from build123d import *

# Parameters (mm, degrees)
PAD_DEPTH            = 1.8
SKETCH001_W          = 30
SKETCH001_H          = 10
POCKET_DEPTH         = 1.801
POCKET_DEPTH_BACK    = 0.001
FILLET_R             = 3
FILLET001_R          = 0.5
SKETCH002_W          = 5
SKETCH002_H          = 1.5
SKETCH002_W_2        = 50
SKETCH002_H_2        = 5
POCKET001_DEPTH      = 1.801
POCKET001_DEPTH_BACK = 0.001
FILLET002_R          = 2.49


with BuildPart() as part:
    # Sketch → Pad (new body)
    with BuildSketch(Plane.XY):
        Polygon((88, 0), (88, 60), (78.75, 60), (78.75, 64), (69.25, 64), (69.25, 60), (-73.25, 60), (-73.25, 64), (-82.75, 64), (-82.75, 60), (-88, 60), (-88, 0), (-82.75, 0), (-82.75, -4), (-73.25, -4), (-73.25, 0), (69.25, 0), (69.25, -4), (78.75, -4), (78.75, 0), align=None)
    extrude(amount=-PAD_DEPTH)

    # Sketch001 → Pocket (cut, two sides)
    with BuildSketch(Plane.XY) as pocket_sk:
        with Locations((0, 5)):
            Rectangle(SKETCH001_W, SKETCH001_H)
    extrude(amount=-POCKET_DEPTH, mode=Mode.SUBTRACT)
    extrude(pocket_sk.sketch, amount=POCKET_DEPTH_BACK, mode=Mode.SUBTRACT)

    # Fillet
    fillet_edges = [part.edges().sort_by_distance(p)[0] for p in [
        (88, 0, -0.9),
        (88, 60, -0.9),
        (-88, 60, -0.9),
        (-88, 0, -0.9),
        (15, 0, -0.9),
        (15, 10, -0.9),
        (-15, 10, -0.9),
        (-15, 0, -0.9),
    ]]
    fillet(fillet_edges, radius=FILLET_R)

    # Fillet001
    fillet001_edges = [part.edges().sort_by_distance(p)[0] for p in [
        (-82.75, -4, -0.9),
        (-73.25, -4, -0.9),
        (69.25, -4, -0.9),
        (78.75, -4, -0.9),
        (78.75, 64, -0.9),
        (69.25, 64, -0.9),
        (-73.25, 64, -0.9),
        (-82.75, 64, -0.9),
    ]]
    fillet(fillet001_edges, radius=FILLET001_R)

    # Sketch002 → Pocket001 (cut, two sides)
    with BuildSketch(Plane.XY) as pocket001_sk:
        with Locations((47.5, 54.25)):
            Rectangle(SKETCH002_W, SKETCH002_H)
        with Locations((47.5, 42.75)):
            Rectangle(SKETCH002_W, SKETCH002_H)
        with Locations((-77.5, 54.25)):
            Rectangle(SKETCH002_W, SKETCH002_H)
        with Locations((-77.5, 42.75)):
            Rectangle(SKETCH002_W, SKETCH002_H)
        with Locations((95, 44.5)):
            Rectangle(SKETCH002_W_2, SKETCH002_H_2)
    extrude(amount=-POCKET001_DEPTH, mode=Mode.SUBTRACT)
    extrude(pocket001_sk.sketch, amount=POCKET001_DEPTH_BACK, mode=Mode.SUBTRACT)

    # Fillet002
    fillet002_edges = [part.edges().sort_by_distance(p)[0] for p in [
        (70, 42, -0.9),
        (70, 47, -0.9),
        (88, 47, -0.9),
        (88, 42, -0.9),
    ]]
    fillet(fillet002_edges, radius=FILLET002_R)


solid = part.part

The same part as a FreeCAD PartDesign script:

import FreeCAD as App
import Part
import Sketcher

V = App.Vector
Q = App.Units.Quantity


def edges_at(feature, points):
    """Names of the edges that pass closest to the given points."""
    edges = feature.Shape.Edges
    near = lambda p: min(range(len(edges)), key=lambda i: edges[i].distToShape(Part.Vertex(*p))[0])
    return sorted({f"Edge{near(p) + 1}" for p in points})

doc = App.newDocument("Part")
params = doc.addObject("Spreadsheet::Sheet", "Params")
for row, (alias, value) in enumerate([
    ("sketch1_height", "60 mm"),
    ("sketch1_height2", "4 mm"),
    ("sketch1_width", "9.5 mm"),
    ("sketch1_width2", "142.5 mm"),
    ("sketch1_width3", "9.25 mm"),
    ("pad1_length", "1.8 mm"),
    ("sketch2_width", "30 mm"),
    ("sketch2_height", "10 mm"),
    ("fillet_radius", "3 mm"),
    ("fillet2_radius", "0.5 mm"),
    ("sketch3_width", "5 mm"),
    ("sketch3_width2", "50 mm"),
    ("sketch3_height", "1.5 mm"),
    ("fillet3_radius", "2.49 mm"),
], start=1):
    params.set(f"A{row}", alias)
    params.set(f"B{row}", "=" + value)
    params.setAlias(f"B{row}", alias)

body = doc.addObject("PartDesign::Body", "Body")

sketch1 = body.newObject("Sketcher::SketchObject", "Sketch")
sketch1.AttachmentSupport = (doc.getObject("XY_Plane"), [""])
sketch1.MapMode = "FlatFace"
sketch1.addGeometry(Part.LineSegment(V(88, 0, 0), V(88, 60, 0)), False)
sketch1.addGeometry(Part.LineSegment(V(88, 60, 0), V(78.8, 60, 0)), False)
sketch1.addGeometry(Part.LineSegment(V(78.8, 60, 0), V(78.8, 64, 0)), False)
sketch1.addGeometry(Part.LineSegment(V(78.8, 64, 0), V(69.2, 64, 0)), False)
sketch1.addGeometry(Part.LineSegment(V(69.2, 64, 0), V(69.2, 60, 0)), False)
sketch1.addGeometry(Part.LineSegment(V(69.2, 60, 0), V(-73.2, 60, 0)), False)
sketch1.addGeometry(Part.LineSegment(V(-73.2, 60, 0), V(-73.2, 64, 0)), False)
sketch1.addGeometry(Part.LineSegment(V(-73.2, 64, 0), V(-82.8, 64, 0)), False)
sketch1.addGeometry(Part.LineSegment(V(-82.8, 64, 0), V(-82.8, 60, 0)), False)
sketch1.addGeometry(Part.LineSegment(V(-82.8, 60, 0), V(-88, 60, 0)), False)
sketch1.addGeometry(Part.LineSegment(V(-88, 60, 0), V(-88, 0, 0)), False)
sketch1.addGeometry(Part.LineSegment(V(-88, 0, 0), V(-82.8, 0, 0)), False)
sketch1.addGeometry(Part.LineSegment(V(-82.8, 0, 0), V(-82.8, -4, 0)), False)
sketch1.addGeometry(Part.LineSegment(V(-82.8, -4, 0), V(-73.2, -4, 0)), False)
sketch1.addGeometry(Part.LineSegment(V(-73.2, -4, 0), V(-73.2, 0, 0)), False)
sketch1.addGeometry(Part.LineSegment(V(-73.2, 0, 0), V(69.2, 0, 0)), False)
sketch1.addGeometry(Part.LineSegment(V(69.2, 0, 0), V(69.2, -4, 0)), False)
sketch1.addGeometry(Part.LineSegment(V(69.2, -4, 0), V(78.8, -4, 0)), False)
sketch1.addGeometry(Part.LineSegment(V(78.8, -4, 0), V(78.8, 0, 0)), False)
sketch1.addGeometry(Part.LineSegment(V(78.8, 0, 0), V(88, 0, 0)), False)
sketch1.addConstraint(Sketcher.Constraint("Coincident", 0, 2, 1, 1))
sketch1.addConstraint(Sketcher.Constraint("Coincident", 1, 2, 2, 1))
sketch1.addConstraint(Sketcher.Constraint("Coincident", 2, 2, 3, 1))
sketch1.addConstraint(Sketcher.Constraint("Coincident", 3, 2, 4, 1))
sketch1.addConstraint(Sketcher.Constraint("Coincident", 4, 2, 5, 1))
sketch1.addConstraint(Sketcher.Constraint("Coincident", 5, 2, 6, 1))
sketch1.addConstraint(Sketcher.Constraint("Coincident", 6, 2, 7, 1))
sketch1.addConstraint(Sketcher.Constraint("Coincident", 7, 2, 8, 1))
sketch1.addConstraint(Sketcher.Constraint("Coincident", 8, 2, 9, 1))
sketch1.addConstraint(Sketcher.Constraint("Coincident", 9, 2, 10, 1))
sketch1.addConstraint(Sketcher.Constraint("Coincident", 10, 2, 11, 1))
sketch1.addConstraint(Sketcher.Constraint("Coincident", 11, 2, 12, 1))
sketch1.addConstraint(Sketcher.Constraint("Coincident", 12, 2, 13, 1))
sketch1.addConstraint(Sketcher.Constraint("Coincident", 13, 2, 14, 1))
sketch1.addConstraint(Sketcher.Constraint("Coincident", 14, 2, 15, 1))
sketch1.addConstraint(Sketcher.Constraint("Coincident", 15, 2, 16, 1))
sketch1.addConstraint(Sketcher.Constraint("Coincident", 16, 2, 17, 1))
sketch1.addConstraint(Sketcher.Constraint("Coincident", 17, 2, 18, 1))
sketch1.addConstraint(Sketcher.Constraint("Coincident", 18, 2, 19, 1))
sketch1.addConstraint(Sketcher.Constraint("Coincident", 19, 2, 0, 1))
sketch1.addConstraint(Sketcher.Constraint("Vertical", 0))
sketch1.addConstraint(Sketcher.Constraint("Horizontal", 1))
sketch1.addConstraint(Sketcher.Constraint("Vertical", 2))
sketch1.addConstraint(Sketcher.Constraint("Horizontal", 3))
sketch1.addConstraint(Sketcher.Constraint("Vertical", 4))
sketch1.addConstraint(Sketcher.Constraint("Horizontal", 5))
sketch1.addConstraint(Sketcher.Constraint("Vertical", 6))
sketch1.addConstraint(Sketcher.Constraint("Horizontal", 7))
sketch1.addConstraint(Sketcher.Constraint("Vertical", 8))
sketch1.addConstraint(Sketcher.Constraint("Horizontal", 9))
sketch1.addConstraint(Sketcher.Constraint("Vertical", 10))
sketch1.addConstraint(Sketcher.Constraint("Horizontal", 11))
sketch1.addConstraint(Sketcher.Constraint("Vertical", 12))
sketch1.addConstraint(Sketcher.Constraint("Horizontal", 13))
sketch1.addConstraint(Sketcher.Constraint("Vertical", 14))
sketch1.addConstraint(Sketcher.Constraint("Horizontal", 15))
sketch1.addConstraint(Sketcher.Constraint("Vertical", 16))
sketch1.addConstraint(Sketcher.Constraint("Horizontal", 17))
sketch1.addConstraint(Sketcher.Constraint("Vertical", 18))
sketch1.addConstraint(Sketcher.Constraint("Horizontal", 19))
sketch1.addConstraint(Sketcher.Constraint("Symmetric", 10, 2, 19, 2, -1, 1))
sketch1.addConstraint(Sketcher.Constraint("PointOnObject", 10, 2, -1))
sketch1.addConstraint(Sketcher.Constraint("PointOnObject", 14, 2, -1))
sketch1.addConstraint(Sketcher.Constraint("Horizontal", 1, 2, 4, 2))
sketch1.addConstraint(Sketcher.Constraint("Horizontal", 3, 2, 6, 2))
sketch1.addConstraint(Sketcher.Constraint("Horizontal", 5, 2, 8, 2))
sketch1.addConstraint(Sketcher.Constraint("Horizontal", 13, 2, 16, 2))
sketch1.addConstraint(Sketcher.Constraint("Vertical", 8, 2, 11, 2))
sketch1.addConstraint(Sketcher.Constraint("Vertical", 6, 2, 13, 2))
sketch1.addConstraint(Sketcher.Constraint("Vertical", 4, 2, 15, 2))
sketch1.addConstraint(Sketcher.Constraint("Vertical", 2, 2, 17, 2))
sketch1.addConstraint(Sketcher.Constraint("Equal", 3, 7))
sketch1.addConstraint(Sketcher.Constraint("Equal", 8, 12))
sketch1.addConstraint(Sketcher.Constraint("DistanceY", 0, 1, 0, 2, Q("60 mm")))
sketch1.addConstraint(Sketcher.Constraint("DistanceY", 2, 1, 2, 2, Q("4 mm")))
sketch1.addConstraint(Sketcher.Constraint("DistanceX", 3, 2, 3, 1, Q("9.5 mm")))
sketch1.addConstraint(Sketcher.Constraint("DistanceX", 5, 2, 5, 1, Q("142.5 mm")))
sketch1.addConstraint(Sketcher.Constraint("DistanceX", -1, 1, 0, 2, Q("88 mm")))
sketch1.addConstraint(Sketcher.Constraint("DistanceX", 1, 2, 1, 1, Q("9.25 mm")))
sketch1.setExpression("Constraints[53]", "Params.sketch1_height")
sketch1.setExpression("Constraints[54]", "Params.sketch1_height2")
sketch1.setExpression("Constraints[55]", "Params.sketch1_width")
sketch1.setExpression("Constraints[56]", "Params.sketch1_width2")
sketch1.setExpression("Constraints[58]", "Params.sketch1_width3")
pad1 = body.newObject("PartDesign::Pad", "Pad")
pad1.Profile = sketch1
pad1.setExpression("Length", "Params.pad1_length")
pad1.Reversed = True

sketch2 = body.newObject("Sketcher::SketchObject", "Sketch001")
sketch2.AttachmentSupport = (doc.getObject("XY_Plane"), [""])
sketch2.MapMode = "FlatFace"
sketch2.addGeometry(Part.LineSegment(V(-15, 10, 0), V(-15, 0, 0)), False)
sketch2.addGeometry(Part.LineSegment(V(-15, 0, 0), V(15, 0, 0)), False)
sketch2.addGeometry(Part.LineSegment(V(15, 0, 0), V(15, 10, 0)), False)
sketch2.addGeometry(Part.LineSegment(V(15, 10, 0), V(-15, 10, 0)), False)
sketch2.addConstraint(Sketcher.Constraint("Coincident", 0, 2, 1, 1))
sketch2.addConstraint(Sketcher.Constraint("Coincident", 1, 2, 2, 1))
sketch2.addConstraint(Sketcher.Constraint("Coincident", 2, 2, 3, 1))
sketch2.addConstraint(Sketcher.Constraint("Coincident", 3, 2, 0, 1))
sketch2.addConstraint(Sketcher.Constraint("Vertical", 0))
sketch2.addConstraint(Sketcher.Constraint("Horizontal", 1))
sketch2.addConstraint(Sketcher.Constraint("Vertical", 2))
sketch2.addConstraint(Sketcher.Constraint("Horizontal", 3))
sketch2.addConstraint(Sketcher.Constraint("Symmetric", 0, 2, 1, 2, -1, 1))
sketch2.addConstraint(Sketcher.Constraint("DistanceX", 1, 1, 1, 2, Q("30 mm")))
sketch2.addConstraint(Sketcher.Constraint("DistanceY", 0, 2, 0, 1, Q("10 mm")))
sketch2.setExpression("Constraints[9]", "Params.sketch2_width")
sketch2.setExpression("Constraints[10]", "Params.sketch2_height")
pocket1 = body.newObject("PartDesign::Pocket", "Pocket")
pocket1.Profile = sketch2
pocket1.Type = "ThroughAll"
pocket1.Midplane = True
doc.recompute()

fillet = body.newObject("PartDesign::Fillet", "Fillet")
fillet.Base = (pocket1, edges_at(pocket1, [
    (88, 0, -0.9),
    (88, 60, -0.9),
    (-88, 60, -0.9),
    (-88, 0, -0.9),
    (15, 0, -0.9),
    (15, 10, -0.9),
    (-15, 10, -0.9),
    (-15, 0, -0.9),
]))
fillet.setExpression("Radius", "Params.fillet_radius")
doc.recompute()

fillet2 = body.newObject("PartDesign::Fillet", "Fillet001")
fillet2.Base = (fillet, edges_at(fillet, [
    (-82.75, -4, -0.9),
    (-73.25, -4, -0.9),
    (69.25, -4, -0.9),
    (78.75, -4, -0.9),
    (78.75, 64, -0.9),
    (69.25, 64, -0.9),
    (-73.25, 64, -0.9),
    (-82.75, 64, -0.9),
]))
fillet2.setExpression("Radius", "Params.fillet2_radius")

sketch3 = body.newObject("Sketcher::SketchObject", "Sketch002")
sketch3.AttachmentSupport = (doc.getObject("XY_Plane"), [""])
sketch3.MapMode = "FlatFace"
sketch3.addGeometry(Part.LineSegment(V(45, 55, 0), V(45, 53.5, 0)), False)
sketch3.addGeometry(Part.LineSegment(V(45, 53.5, 0), V(50, 53.5, 0)), False)
sketch3.addGeometry(Part.LineSegment(V(50, 53.5, 0), V(50, 55, 0)), False)
sketch3.addGeometry(Part.LineSegment(V(50, 55, 0), V(45, 55, 0)), False)
sketch3.addGeometry(Part.LineSegment(V(45, 43.5, 0), V(45, 42, 0)), False)
sketch3.addGeometry(Part.LineSegment(V(45, 42, 0), V(50, 42, 0)), False)
sketch3.addGeometry(Part.LineSegment(V(50, 42, 0), V(50, 43.5, 0)), False)
sketch3.addGeometry(Part.LineSegment(V(50, 43.5, 0), V(45, 43.5, 0)), False)
sketch3.addGeometry(Part.LineSegment(V(-80, 55, 0), V(-80, 53.5, 0)), False)
sketch3.addGeometry(Part.LineSegment(V(-80, 53.5, 0), V(-75, 53.5, 0)), False)
sketch3.addGeometry(Part.LineSegment(V(-75, 53.5, 0), V(-75, 55, 0)), False)
sketch3.addGeometry(Part.LineSegment(V(-75, 55, 0), V(-80, 55, 0)), False)
sketch3.addGeometry(Part.LineSegment(V(-80, 43.5, 0), V(-80, 42, 0)), False)
sketch3.addGeometry(Part.LineSegment(V(-80, 42, 0), V(-75, 42, 0)), False)
sketch3.addGeometry(Part.LineSegment(V(-75, 42, 0), V(-75, 43.5, 0)), False)
sketch3.addGeometry(Part.LineSegment(V(-75, 43.5, 0), V(-80, 43.5, 0)), False)
sketch3.addGeometry(Part.LineSegment(V(70, 47, 0), V(70, 42, 0)), False)
sketch3.addGeometry(Part.LineSegment(V(70, 42, 0), V(120, 42, 0)), False)
sketch3.addGeometry(Part.LineSegment(V(120, 42, 0), V(120, 47, 0)), False)
sketch3.addGeometry(Part.LineSegment(V(120, 47, 0), V(70, 47, 0)), False)
sketch3.addConstraint(Sketcher.Constraint("Coincident", 0, 2, 1, 1))
sketch3.addConstraint(Sketcher.Constraint("Coincident", 1, 2, 2, 1))
sketch3.addConstraint(Sketcher.Constraint("Coincident", 2, 2, 3, 1))
sketch3.addConstraint(Sketcher.Constraint("Coincident", 3, 2, 0, 1))
sketch3.addConstraint(Sketcher.Constraint("Coincident", 4, 2, 5, 1))
sketch3.addConstraint(Sketcher.Constraint("Coincident", 5, 2, 6, 1))
sketch3.addConstraint(Sketcher.Constraint("Coincident", 6, 2, 7, 1))
sketch3.addConstraint(Sketcher.Constraint("Coincident", 7, 2, 4, 1))
sketch3.addConstraint(Sketcher.Constraint("Coincident", 8, 2, 9, 1))
sketch3.addConstraint(Sketcher.Constraint("Coincident", 9, 2, 10, 1))
sketch3.addConstraint(Sketcher.Constraint("Coincident", 10, 2, 11, 1))
sketch3.addConstraint(Sketcher.Constraint("Coincident", 11, 2, 8, 1))
sketch3.addConstraint(Sketcher.Constraint("Coincident", 12, 2, 13, 1))
sketch3.addConstraint(Sketcher.Constraint("Coincident", 13, 2, 14, 1))
sketch3.addConstraint(Sketcher.Constraint("Coincident", 14, 2, 15, 1))
sketch3.addConstraint(Sketcher.Constraint("Coincident", 15, 2, 12, 1))
sketch3.addConstraint(Sketcher.Constraint("Coincident", 16, 2, 17, 1))
sketch3.addConstraint(Sketcher.Constraint("Coincident", 17, 2, 18, 1))
sketch3.addConstraint(Sketcher.Constraint("Coincident", 18, 2, 19, 1))
sketch3.addConstraint(Sketcher.Constraint("Coincident", 19, 2, 16, 1))
sketch3.addConstraint(Sketcher.Constraint("Vertical", 0))
sketch3.addConstraint(Sketcher.Constraint("Horizontal", 1))
sketch3.addConstraint(Sketcher.Constraint("Vertical", 2))
sketch3.addConstraint(Sketcher.Constraint("Horizontal", 3))
sketch3.addConstraint(Sketcher.Constraint("Vertical", 4))
sketch3.addConstraint(Sketcher.Constraint("Horizontal", 5))
sketch3.addConstraint(Sketcher.Constraint("Vertical", 6))
sketch3.addConstraint(Sketcher.Constraint("Horizontal", 7))
sketch3.addConstraint(Sketcher.Constraint("Vertical", 8))
sketch3.addConstraint(Sketcher.Constraint("Horizontal", 9))
sketch3.addConstraint(Sketcher.Constraint("Vertical", 10))
sketch3.addConstraint(Sketcher.Constraint("Horizontal", 11))
sketch3.addConstraint(Sketcher.Constraint("Vertical", 12))
sketch3.addConstraint(Sketcher.Constraint("Horizontal", 13))
sketch3.addConstraint(Sketcher.Constraint("Vertical", 14))
sketch3.addConstraint(Sketcher.Constraint("Horizontal", 15))
sketch3.addConstraint(Sketcher.Constraint("Vertical", 16))
sketch3.addConstraint(Sketcher.Constraint("Horizontal", 17))
sketch3.addConstraint(Sketcher.Constraint("Vertical", 18))
sketch3.addConstraint(Sketcher.Constraint("Horizontal", 19))
sketch3.addConstraint(Sketcher.Constraint("Horizontal", 1, 2, 8, 2))
sketch3.addConstraint(Sketcher.Constraint("Horizontal", 3, 2, 10, 2))
sketch3.addConstraint(Sketcher.Constraint("Horizontal", 5, 2, 12, 2))
sketch3.addConstraint(Sketcher.Constraint("Horizontal", 7, 2, 14, 2))
sketch3.addConstraint(Sketcher.Constraint("Horizontal", 13, 2, 16, 2))
sketch3.addConstraint(Sketcher.Constraint("Vertical", 3, 2, 4, 2))
sketch3.addConstraint(Sketcher.Constraint("Vertical", 2, 2, 5, 2))
sketch3.addConstraint(Sketcher.Constraint("Vertical", 11, 2, 12, 2))
sketch3.addConstraint(Sketcher.Constraint("Vertical", 10, 2, 13, 2))
sketch3.addConstraint(Sketcher.Constraint("Equal", 7, 9))
sketch3.addConstraint(Sketcher.Constraint("Equal", 2, 4))
sketch3.addConstraint(Sketcher.Constraint("Equal", 15, 16))
sketch3.addConstraint(Sketcher.Constraint("DistanceX", 1, 1, 1, 2, Q("5 mm")))
sketch3.addConstraint(Sketcher.Constraint("DistanceX", 17, 1, 17, 2, Q("50 mm")))
sketch3.addConstraint(Sketcher.Constraint("DistanceY", 0, 2, 0, 1, Q("1.5 mm")))
sketch3.addConstraint(Sketcher.Constraint("DistanceX", -1, 1, 0, 2, Q("45 mm")))
sketch3.addConstraint(Sketcher.Constraint("DistanceY", -1, 1, 2, 2, Q("55 mm")))
sketch3.addConstraint(Sketcher.Constraint("DistanceY", -1, 1, 4, 2, Q("42 mm")))
sketch3.addConstraint(Sketcher.Constraint("DistanceX", 8, 2, -1, 1, Q("80 mm")))
sketch3.addConstraint(Sketcher.Constraint("DistanceX", -1, 1, 16, 2, Q("70 mm")))
sketch3.setExpression("Constraints[52]", "Params.sketch3_width")
sketch3.setExpression("Constraints[53]", "Params.sketch3_width2")
sketch3.setExpression("Constraints[54]", "Params.sketch3_height")
pocket2 = body.newObject("PartDesign::Pocket", "Pocket001")
pocket2.Profile = sketch3
pocket2.Type = "ThroughAll"
pocket2.Midplane = True
doc.recompute()

fillet3 = body.newObject("PartDesign::Fillet", "Fillet002")
fillet3.Base = (pocket2, edges_at(pocket2, [
    (70, 42, -0.9),
    (70, 47, -0.9),
    (88, 47, -0.9),
    (88, 42, -0.9),
]))
fillet3.setExpression("Radius", "Params.fillet3_radius")

doc.recompute()
